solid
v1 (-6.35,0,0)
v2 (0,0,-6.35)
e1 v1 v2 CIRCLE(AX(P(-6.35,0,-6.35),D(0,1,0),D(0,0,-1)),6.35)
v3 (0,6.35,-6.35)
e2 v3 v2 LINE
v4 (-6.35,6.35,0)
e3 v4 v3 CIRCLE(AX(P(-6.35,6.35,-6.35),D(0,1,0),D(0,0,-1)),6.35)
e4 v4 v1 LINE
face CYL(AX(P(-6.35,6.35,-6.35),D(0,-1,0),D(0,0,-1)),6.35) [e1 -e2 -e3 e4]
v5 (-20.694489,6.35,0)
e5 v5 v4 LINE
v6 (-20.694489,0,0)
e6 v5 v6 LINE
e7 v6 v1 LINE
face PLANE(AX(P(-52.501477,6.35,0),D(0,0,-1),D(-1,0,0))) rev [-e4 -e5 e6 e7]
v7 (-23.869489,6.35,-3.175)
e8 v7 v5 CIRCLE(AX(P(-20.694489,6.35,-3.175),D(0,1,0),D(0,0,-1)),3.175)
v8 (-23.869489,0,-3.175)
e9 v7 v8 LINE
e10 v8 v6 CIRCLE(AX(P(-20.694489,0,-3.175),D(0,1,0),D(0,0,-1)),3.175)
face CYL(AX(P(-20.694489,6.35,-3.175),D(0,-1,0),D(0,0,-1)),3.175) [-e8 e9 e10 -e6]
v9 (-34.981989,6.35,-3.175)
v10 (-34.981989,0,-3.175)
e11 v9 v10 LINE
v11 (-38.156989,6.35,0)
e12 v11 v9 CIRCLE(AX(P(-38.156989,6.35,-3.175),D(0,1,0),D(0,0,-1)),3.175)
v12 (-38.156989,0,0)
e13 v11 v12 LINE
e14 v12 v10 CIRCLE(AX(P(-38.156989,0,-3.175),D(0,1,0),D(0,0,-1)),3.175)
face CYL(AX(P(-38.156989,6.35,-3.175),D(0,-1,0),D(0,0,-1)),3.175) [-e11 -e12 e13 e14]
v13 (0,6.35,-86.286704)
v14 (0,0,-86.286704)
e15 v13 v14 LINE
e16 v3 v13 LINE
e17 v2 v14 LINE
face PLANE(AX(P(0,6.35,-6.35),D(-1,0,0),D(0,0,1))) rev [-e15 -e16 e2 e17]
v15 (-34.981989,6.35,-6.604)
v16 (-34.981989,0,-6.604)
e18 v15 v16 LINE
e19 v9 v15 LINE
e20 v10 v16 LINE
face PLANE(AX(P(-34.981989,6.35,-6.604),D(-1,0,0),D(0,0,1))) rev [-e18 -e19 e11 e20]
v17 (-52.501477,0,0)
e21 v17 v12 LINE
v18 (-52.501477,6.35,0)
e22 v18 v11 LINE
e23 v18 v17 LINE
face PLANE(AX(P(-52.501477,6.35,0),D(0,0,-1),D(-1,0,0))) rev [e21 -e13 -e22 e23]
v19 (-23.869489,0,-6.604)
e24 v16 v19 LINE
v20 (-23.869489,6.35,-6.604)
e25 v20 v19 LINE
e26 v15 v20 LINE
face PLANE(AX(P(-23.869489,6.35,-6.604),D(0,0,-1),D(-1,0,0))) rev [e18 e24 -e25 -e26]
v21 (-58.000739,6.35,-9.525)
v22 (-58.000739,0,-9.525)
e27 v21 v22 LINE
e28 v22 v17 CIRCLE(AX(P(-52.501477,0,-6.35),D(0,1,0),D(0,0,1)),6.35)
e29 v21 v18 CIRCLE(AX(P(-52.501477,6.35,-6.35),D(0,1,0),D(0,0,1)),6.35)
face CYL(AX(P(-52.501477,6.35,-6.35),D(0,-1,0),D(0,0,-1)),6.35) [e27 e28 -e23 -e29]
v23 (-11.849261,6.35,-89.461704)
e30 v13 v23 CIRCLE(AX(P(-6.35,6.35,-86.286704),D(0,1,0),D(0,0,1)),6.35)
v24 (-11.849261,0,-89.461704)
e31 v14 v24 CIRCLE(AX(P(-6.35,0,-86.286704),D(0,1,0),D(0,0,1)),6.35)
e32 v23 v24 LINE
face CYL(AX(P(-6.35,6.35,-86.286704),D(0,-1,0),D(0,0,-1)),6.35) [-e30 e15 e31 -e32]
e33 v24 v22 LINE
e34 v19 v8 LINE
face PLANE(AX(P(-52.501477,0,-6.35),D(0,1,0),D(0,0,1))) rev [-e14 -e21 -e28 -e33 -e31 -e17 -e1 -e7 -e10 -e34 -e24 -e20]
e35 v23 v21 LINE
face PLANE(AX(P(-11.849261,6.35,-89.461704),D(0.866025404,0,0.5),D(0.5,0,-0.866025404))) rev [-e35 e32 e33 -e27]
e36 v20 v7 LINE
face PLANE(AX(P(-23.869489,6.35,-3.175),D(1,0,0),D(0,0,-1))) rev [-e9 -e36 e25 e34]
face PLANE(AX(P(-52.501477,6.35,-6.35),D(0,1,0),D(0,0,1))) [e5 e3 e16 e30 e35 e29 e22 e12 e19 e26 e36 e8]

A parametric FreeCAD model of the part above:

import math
import FreeCAD as App
import Part
import Sketcher
Q = App.Units.Quantity

doc = App.newDocument("Part")
body = doc.addObject("PartDesign::Body", "Body")

# Sketch on XZ plane
sketch1 = body.newObject("Sketcher::SketchObject", "Sketch")
sketch1.AttachmentSupport = (doc.getObject("XZ_Plane"), [""])
sketch1.MapMode = "FlatFace"
sketch1.addGeometry(Part.LineSegment(App.Vector(0, -6.35, 0), App.Vector(0, -86.286704, 0)), False)
sketch1.addGeometry(Part.ArcOfCircle(Part.Circle(App.Vector(-6.35, -86.286704, 0), App.Vector(0, 0, 1), 6.35), math.radians(-150), math.radians(0)), False)
sketch1.addGeometry(Part.LineSegment(App.Vector(-11.849261, -89.461704, 0), App.Vector(-58.000739, -9.525, 0)), False)
sketch1.addGeometry(Part.ArcOfCircle(Part.Circle(App.Vector(-52.501477, -6.35, 0), App.Vector(0, 0, 1), 6.35), math.radians(90), math.radians(210)), False)
sketch1.addGeometry(Part.LineSegment(App.Vector(-52.501477, 0, 0), App.Vector(-6.35, 0, 0)), False)
sketch1.addGeometry(Part.ArcOfCircle(Part.Circle(App.Vector(-6.35, -6.35, 0), App.Vector(0, 0, 1), 6.35), math.radians(0), math.radians(90)), False)
sketch1.addConstraint(Sketcher.Constraint("Tangent", 0, 2, 1, 2))
sketch1.addConstraint(Sketcher.Constraint("Tangent", 1, 1, 2, 1))
sketch1.addConstraint(Sketcher.Constraint("Tangent", 2, 2, 3, 2))
sketch1.addConstraint(Sketcher.Constraint("Tangent", 3, 1, 4, 1))
sketch1.addConstraint(Sketcher.Constraint("Tangent", 4, 2, 5, 2))
sketch1.addConstraint(Sketcher.Constraint("Tangent", 5, 1, 0, 1))
sketch1.addConstraint(Sketcher.Constraint("Vertical", 0))
sketch1.addConstraint(Sketcher.Constraint("Horizontal", 4))
sketch1.addConstraint(Sketcher.Constraint("Equal", 1, 3))
sketch1.addConstraint(Sketcher.Constraint("Equal", 3, 5))
sketch1.addConstraint(Sketcher.Constraint("PointOnObject", 0, 2, -2))
sketch1.addConstraint(Sketcher.Constraint("PointOnObject", 3, 1, -1))
sketch1.addConstraint(Sketcher.Constraint("Radius", 1, Q("0.25 in")))
sketch1.addConstraint(Sketcher.Constraint("Angle", 2, Q("120 deg")))
sketch1.addConstraint(Sketcher.Constraint("DistanceX", 4, 1, 4, 2, Q("46.151477 mm")))
pad1 = body.newObject("PartDesign::Pad", "Pad")
pad1.Profile = sketch1
pad1.Length = Q("0.25 in")
pad1.Reversed = True

# Sketch on XZ plane
sketch2 = body.newObject("Sketcher::SketchObject", "Sketch001")
sketch2.AttachmentSupport = (doc.getObject("XZ_Plane"), [""])
sketch2.MapMode = "FlatFace"
sketch2.addGeometry(Part.LineSegment(App.Vector(-34.981989, -6.604, 0), App.Vector(-23.869489, -6.604, 0)), False)
sketch2.addGeometry(Part.LineSegment(App.Vector(-23.869489, -6.604, 0), App.Vector(-23.869489, -3.175, 0)), False)
sketch2.addGeometry(Part.ArcOfCircle(Part.Circle(App.Vector(-20.694489, -3.175, 0), App.Vector(0, 0, 1), 3.175), math.radians(90), math.radians(180)), False)
sketch2.addGeometry(Part.LineSegment(App.Vector(-20.694489, 0, 0), App.Vector(-38.156989, 0, 0)), False)
sketch2.addGeometry(Part.ArcOfCircle(Part.Circle(App.Vector(-38.156989, -3.175, 0), App.Vector(0, 0, 1), 3.175), math.radians(0), math.radians(90)), False)
sketch2.addGeometry(Part.LineSegment(App.Vector(-34.981989, -3.175, 0), App.Vector(-34.981989, -6.604, 0)), False)
sketch2.addConstraint(Sketcher.Constraint("Coincident", 0, 2, 1, 1))
sketch2.addConstraint(Sketcher.Constraint("Tangent", 1, 2, 2, 2))
sketch2.addConstraint(Sketcher.Constraint("Tangent", 2, 1, 3, 1))
sketch2.addConstraint(Sketcher.Constraint("Tangent", 3, 2, 4, 2))
sketch2.addConstraint(Sketcher.Constraint("Tangent", 4, 1, 5, 1))
sketch2.addConstraint(Sketcher.Constraint("Coincident", 5, 2, 0, 1))
sketch2.addConstraint(Sketcher.Constraint("Horizontal", 0))
sketch2.addConstraint(Sketcher.Constraint("Vertical", 1))
sketch2.addConstraint(Sketcher.Constraint("Horizontal", 3))
sketch2.addConstraint(Sketcher.Constraint("Vertical", 5))
sketch2.addConstraint(Sketcher.Constraint("Equal", 2, 4))
sketch2.addConstraint(Sketcher.Constraint("PointOnObject", 2, 1, -1))
sketch2.addConstraint(Sketcher.Constraint("Radius", 2, Q("0.125 in")))
sketch2.addConstraint(Sketcher.Constraint("DistanceX", 0, 1, 0, 2, Q("0.4375 in")))
sketch2.addConstraint(Sketcher.Constraint("DistanceY", 1, 1, 1, 2, Q("0.135 in")))
sketch2.addConstraint(Sketcher.Constraint("DistanceX", 2, 3, -1, 1, Q("20.694489 mm")))
pocket1 = body.newObject("PartDesign::Pocket", "Pocket")
pocket1.Profile = sketch2
pocket1.Type = "ThroughAll"

doc.recompute()
